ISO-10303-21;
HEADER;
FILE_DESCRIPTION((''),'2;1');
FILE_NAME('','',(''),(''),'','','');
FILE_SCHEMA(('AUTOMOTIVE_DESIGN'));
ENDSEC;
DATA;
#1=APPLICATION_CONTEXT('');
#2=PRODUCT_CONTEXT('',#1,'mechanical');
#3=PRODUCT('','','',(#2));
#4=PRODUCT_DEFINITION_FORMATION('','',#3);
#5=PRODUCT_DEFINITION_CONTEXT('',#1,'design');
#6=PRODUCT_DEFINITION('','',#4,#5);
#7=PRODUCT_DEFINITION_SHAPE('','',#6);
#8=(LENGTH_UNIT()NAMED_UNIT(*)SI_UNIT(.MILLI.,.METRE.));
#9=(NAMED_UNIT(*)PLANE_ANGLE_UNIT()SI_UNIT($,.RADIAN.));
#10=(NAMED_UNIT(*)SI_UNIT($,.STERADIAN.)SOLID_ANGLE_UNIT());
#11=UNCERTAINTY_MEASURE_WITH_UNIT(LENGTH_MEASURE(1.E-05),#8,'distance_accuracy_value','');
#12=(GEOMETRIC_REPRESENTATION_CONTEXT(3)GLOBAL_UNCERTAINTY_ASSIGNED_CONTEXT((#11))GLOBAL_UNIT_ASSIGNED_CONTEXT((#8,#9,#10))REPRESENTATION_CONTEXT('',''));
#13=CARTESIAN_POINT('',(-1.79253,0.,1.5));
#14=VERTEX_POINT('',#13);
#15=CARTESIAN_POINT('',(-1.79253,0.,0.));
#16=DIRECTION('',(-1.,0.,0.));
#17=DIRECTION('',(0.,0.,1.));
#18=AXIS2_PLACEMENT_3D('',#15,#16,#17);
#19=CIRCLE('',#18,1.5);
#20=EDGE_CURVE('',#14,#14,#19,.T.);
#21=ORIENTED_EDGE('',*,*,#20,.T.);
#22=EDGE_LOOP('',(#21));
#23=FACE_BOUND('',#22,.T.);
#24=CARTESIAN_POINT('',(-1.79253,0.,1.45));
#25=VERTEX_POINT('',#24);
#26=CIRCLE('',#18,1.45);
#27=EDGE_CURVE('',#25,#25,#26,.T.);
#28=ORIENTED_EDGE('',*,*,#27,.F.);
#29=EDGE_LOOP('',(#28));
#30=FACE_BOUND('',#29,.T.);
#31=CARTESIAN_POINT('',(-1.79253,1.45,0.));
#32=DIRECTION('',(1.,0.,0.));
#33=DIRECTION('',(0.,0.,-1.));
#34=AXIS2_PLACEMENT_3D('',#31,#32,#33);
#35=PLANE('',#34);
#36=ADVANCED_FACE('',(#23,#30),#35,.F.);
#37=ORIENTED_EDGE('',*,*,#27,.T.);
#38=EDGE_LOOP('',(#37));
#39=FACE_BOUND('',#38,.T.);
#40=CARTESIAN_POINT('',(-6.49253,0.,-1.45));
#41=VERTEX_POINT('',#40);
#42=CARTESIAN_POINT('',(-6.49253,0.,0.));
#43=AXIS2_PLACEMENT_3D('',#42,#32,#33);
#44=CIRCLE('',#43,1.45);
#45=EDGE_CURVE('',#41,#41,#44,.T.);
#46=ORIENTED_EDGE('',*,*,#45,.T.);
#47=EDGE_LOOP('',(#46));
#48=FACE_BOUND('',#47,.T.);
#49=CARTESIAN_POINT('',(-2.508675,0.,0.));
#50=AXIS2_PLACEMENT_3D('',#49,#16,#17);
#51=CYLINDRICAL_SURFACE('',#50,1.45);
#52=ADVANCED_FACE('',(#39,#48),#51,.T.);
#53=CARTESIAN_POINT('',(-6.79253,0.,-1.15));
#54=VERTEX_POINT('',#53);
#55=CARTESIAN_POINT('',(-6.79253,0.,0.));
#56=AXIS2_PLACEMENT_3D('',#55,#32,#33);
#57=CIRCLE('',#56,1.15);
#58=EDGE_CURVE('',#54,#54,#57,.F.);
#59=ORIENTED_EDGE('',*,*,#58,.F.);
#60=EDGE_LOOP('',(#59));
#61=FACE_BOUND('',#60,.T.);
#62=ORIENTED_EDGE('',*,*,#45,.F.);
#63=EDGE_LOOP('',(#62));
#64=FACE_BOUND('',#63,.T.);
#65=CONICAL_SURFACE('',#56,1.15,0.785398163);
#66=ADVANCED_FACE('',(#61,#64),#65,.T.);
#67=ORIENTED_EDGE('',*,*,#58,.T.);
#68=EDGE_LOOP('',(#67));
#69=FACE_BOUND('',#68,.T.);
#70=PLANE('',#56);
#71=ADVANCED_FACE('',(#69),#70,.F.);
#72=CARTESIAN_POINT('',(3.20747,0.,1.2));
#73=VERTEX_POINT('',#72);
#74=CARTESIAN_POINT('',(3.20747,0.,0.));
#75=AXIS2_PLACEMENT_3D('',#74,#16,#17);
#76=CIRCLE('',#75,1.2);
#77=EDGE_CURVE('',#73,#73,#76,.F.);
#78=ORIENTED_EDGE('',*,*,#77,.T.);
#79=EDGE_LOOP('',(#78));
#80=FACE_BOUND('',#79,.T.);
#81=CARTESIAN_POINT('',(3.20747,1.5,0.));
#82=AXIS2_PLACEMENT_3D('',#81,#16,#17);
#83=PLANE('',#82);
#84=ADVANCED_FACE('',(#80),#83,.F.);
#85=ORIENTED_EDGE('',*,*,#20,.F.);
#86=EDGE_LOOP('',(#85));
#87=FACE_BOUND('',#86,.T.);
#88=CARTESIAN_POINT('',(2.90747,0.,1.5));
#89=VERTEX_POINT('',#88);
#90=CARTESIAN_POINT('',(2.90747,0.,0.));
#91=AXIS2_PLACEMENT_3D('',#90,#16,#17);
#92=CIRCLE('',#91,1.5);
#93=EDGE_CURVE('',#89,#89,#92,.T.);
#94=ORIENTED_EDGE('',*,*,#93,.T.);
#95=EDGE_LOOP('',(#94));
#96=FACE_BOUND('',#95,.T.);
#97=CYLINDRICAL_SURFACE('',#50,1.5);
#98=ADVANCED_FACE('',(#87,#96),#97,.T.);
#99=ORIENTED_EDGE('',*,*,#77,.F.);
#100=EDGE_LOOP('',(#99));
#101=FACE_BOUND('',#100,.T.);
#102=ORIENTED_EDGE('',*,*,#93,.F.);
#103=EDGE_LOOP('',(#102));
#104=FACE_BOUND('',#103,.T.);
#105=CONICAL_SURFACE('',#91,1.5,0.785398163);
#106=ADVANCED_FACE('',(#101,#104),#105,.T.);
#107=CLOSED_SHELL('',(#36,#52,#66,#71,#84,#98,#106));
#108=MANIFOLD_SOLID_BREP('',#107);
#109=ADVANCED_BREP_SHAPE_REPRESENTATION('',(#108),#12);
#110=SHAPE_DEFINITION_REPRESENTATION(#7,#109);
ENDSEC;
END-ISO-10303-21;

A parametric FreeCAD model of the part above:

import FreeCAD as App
import Part
import Sketcher
from FreeCAD import Vector
Q = App.Units.Quantity


def edges_at(feature, points):
    """Names of the edges that pass closest to the given points."""
    edges = feature.Shape.Edges
    near = lambda p: min(range(len(edges)), key=lambda i: edges[i].distToShape(Part.Vertex(*p))[0])
    return sorted({f"Edge{near(p) + 1}" for p in points})


def add_polygon(sketch, points):
    """Adds a closed chain of lines whose ends are joined by coincident constraints."""
    first, n = sketch.GeometryCount, len(points)
    for a, b in zip(points, points[1:] + points[:1]):
        sketch.addGeometry(Part.LineSegment(App.Vector(*a, 0), App.Vector(*b, 0)), False)
    for i in range(n):
        sketch.addConstraint(Sketcher.Constraint("Coincident", first + i, 2, first + (i + 1) % n, 1))

doc = App.newDocument("Part")
body = doc.addObject("PartDesign::Body", "Body")

sketch1 = body.newObject("Sketcher::SketchObject", "Sketch")
sketch1.AttachmentSupport = (doc.getObject("XY_Plane"), [""])
sketch1.MapMode = "FlatFace"
add_polygon(sketch1, [(-1.79, 1.45), (-6.79, 1.45), (-6.79, 0), (3.21, 0), (3.21, 1.5), (-1.79, 1.5)])
sketch1.addConstraint(Sketcher.Constraint("Horizontal", 0))
sketch1.addConstraint(Sketcher.Constraint("Vertical", 1))
sketch1.addConstraint(Sketcher.Constraint("Horizontal", 2))
sketch1.addConstraint(Sketcher.Constraint("Vertical", 3))
sketch1.addConstraint(Sketcher.Constraint("Horizontal", 4))
sketch1.addConstraint(Sketcher.Constraint("Vertical", 5))
sketch1.addConstraint(Sketcher.Constraint("PointOnObject", 1, 2, -1))
sketch1.addConstraint(Sketcher.Constraint("Equal", 0, 4))
sketch1.addConstraint(Sketcher.Constraint("DistanceX", 0, 2, 0, 1, Q("5 mm")))
sketch1.addConstraint(Sketcher.Constraint("DistanceY", 3, 1, 3, 2, Q("1.5 mm")))
sketch1.addConstraint(Sketcher.Constraint("DistanceY", 1, 2, 1, 1, Q("1.45 mm")))
sketch1.addConstraint(Sketcher.Constraint("DistanceX", 0, 2, -1, 1, Q("6.79253 mm")))
revolution = body.newObject("PartDesign::Revolution", "Revolution")
revolution.Profile = sketch1
revolution.ReferenceAxis = (sketch1, ["H_Axis"])
revolution.Angle = 360
doc.recompute()

chamfer = body.newObject("PartDesign::Chamfer", "Chamfer")
chamfer.Base = (revolution, edges_at(revolution, [(3.207, -1.5, 0), (-6.793, -1.45, 0)]))
chamfer.Size = 0.3

doc.recompute()
